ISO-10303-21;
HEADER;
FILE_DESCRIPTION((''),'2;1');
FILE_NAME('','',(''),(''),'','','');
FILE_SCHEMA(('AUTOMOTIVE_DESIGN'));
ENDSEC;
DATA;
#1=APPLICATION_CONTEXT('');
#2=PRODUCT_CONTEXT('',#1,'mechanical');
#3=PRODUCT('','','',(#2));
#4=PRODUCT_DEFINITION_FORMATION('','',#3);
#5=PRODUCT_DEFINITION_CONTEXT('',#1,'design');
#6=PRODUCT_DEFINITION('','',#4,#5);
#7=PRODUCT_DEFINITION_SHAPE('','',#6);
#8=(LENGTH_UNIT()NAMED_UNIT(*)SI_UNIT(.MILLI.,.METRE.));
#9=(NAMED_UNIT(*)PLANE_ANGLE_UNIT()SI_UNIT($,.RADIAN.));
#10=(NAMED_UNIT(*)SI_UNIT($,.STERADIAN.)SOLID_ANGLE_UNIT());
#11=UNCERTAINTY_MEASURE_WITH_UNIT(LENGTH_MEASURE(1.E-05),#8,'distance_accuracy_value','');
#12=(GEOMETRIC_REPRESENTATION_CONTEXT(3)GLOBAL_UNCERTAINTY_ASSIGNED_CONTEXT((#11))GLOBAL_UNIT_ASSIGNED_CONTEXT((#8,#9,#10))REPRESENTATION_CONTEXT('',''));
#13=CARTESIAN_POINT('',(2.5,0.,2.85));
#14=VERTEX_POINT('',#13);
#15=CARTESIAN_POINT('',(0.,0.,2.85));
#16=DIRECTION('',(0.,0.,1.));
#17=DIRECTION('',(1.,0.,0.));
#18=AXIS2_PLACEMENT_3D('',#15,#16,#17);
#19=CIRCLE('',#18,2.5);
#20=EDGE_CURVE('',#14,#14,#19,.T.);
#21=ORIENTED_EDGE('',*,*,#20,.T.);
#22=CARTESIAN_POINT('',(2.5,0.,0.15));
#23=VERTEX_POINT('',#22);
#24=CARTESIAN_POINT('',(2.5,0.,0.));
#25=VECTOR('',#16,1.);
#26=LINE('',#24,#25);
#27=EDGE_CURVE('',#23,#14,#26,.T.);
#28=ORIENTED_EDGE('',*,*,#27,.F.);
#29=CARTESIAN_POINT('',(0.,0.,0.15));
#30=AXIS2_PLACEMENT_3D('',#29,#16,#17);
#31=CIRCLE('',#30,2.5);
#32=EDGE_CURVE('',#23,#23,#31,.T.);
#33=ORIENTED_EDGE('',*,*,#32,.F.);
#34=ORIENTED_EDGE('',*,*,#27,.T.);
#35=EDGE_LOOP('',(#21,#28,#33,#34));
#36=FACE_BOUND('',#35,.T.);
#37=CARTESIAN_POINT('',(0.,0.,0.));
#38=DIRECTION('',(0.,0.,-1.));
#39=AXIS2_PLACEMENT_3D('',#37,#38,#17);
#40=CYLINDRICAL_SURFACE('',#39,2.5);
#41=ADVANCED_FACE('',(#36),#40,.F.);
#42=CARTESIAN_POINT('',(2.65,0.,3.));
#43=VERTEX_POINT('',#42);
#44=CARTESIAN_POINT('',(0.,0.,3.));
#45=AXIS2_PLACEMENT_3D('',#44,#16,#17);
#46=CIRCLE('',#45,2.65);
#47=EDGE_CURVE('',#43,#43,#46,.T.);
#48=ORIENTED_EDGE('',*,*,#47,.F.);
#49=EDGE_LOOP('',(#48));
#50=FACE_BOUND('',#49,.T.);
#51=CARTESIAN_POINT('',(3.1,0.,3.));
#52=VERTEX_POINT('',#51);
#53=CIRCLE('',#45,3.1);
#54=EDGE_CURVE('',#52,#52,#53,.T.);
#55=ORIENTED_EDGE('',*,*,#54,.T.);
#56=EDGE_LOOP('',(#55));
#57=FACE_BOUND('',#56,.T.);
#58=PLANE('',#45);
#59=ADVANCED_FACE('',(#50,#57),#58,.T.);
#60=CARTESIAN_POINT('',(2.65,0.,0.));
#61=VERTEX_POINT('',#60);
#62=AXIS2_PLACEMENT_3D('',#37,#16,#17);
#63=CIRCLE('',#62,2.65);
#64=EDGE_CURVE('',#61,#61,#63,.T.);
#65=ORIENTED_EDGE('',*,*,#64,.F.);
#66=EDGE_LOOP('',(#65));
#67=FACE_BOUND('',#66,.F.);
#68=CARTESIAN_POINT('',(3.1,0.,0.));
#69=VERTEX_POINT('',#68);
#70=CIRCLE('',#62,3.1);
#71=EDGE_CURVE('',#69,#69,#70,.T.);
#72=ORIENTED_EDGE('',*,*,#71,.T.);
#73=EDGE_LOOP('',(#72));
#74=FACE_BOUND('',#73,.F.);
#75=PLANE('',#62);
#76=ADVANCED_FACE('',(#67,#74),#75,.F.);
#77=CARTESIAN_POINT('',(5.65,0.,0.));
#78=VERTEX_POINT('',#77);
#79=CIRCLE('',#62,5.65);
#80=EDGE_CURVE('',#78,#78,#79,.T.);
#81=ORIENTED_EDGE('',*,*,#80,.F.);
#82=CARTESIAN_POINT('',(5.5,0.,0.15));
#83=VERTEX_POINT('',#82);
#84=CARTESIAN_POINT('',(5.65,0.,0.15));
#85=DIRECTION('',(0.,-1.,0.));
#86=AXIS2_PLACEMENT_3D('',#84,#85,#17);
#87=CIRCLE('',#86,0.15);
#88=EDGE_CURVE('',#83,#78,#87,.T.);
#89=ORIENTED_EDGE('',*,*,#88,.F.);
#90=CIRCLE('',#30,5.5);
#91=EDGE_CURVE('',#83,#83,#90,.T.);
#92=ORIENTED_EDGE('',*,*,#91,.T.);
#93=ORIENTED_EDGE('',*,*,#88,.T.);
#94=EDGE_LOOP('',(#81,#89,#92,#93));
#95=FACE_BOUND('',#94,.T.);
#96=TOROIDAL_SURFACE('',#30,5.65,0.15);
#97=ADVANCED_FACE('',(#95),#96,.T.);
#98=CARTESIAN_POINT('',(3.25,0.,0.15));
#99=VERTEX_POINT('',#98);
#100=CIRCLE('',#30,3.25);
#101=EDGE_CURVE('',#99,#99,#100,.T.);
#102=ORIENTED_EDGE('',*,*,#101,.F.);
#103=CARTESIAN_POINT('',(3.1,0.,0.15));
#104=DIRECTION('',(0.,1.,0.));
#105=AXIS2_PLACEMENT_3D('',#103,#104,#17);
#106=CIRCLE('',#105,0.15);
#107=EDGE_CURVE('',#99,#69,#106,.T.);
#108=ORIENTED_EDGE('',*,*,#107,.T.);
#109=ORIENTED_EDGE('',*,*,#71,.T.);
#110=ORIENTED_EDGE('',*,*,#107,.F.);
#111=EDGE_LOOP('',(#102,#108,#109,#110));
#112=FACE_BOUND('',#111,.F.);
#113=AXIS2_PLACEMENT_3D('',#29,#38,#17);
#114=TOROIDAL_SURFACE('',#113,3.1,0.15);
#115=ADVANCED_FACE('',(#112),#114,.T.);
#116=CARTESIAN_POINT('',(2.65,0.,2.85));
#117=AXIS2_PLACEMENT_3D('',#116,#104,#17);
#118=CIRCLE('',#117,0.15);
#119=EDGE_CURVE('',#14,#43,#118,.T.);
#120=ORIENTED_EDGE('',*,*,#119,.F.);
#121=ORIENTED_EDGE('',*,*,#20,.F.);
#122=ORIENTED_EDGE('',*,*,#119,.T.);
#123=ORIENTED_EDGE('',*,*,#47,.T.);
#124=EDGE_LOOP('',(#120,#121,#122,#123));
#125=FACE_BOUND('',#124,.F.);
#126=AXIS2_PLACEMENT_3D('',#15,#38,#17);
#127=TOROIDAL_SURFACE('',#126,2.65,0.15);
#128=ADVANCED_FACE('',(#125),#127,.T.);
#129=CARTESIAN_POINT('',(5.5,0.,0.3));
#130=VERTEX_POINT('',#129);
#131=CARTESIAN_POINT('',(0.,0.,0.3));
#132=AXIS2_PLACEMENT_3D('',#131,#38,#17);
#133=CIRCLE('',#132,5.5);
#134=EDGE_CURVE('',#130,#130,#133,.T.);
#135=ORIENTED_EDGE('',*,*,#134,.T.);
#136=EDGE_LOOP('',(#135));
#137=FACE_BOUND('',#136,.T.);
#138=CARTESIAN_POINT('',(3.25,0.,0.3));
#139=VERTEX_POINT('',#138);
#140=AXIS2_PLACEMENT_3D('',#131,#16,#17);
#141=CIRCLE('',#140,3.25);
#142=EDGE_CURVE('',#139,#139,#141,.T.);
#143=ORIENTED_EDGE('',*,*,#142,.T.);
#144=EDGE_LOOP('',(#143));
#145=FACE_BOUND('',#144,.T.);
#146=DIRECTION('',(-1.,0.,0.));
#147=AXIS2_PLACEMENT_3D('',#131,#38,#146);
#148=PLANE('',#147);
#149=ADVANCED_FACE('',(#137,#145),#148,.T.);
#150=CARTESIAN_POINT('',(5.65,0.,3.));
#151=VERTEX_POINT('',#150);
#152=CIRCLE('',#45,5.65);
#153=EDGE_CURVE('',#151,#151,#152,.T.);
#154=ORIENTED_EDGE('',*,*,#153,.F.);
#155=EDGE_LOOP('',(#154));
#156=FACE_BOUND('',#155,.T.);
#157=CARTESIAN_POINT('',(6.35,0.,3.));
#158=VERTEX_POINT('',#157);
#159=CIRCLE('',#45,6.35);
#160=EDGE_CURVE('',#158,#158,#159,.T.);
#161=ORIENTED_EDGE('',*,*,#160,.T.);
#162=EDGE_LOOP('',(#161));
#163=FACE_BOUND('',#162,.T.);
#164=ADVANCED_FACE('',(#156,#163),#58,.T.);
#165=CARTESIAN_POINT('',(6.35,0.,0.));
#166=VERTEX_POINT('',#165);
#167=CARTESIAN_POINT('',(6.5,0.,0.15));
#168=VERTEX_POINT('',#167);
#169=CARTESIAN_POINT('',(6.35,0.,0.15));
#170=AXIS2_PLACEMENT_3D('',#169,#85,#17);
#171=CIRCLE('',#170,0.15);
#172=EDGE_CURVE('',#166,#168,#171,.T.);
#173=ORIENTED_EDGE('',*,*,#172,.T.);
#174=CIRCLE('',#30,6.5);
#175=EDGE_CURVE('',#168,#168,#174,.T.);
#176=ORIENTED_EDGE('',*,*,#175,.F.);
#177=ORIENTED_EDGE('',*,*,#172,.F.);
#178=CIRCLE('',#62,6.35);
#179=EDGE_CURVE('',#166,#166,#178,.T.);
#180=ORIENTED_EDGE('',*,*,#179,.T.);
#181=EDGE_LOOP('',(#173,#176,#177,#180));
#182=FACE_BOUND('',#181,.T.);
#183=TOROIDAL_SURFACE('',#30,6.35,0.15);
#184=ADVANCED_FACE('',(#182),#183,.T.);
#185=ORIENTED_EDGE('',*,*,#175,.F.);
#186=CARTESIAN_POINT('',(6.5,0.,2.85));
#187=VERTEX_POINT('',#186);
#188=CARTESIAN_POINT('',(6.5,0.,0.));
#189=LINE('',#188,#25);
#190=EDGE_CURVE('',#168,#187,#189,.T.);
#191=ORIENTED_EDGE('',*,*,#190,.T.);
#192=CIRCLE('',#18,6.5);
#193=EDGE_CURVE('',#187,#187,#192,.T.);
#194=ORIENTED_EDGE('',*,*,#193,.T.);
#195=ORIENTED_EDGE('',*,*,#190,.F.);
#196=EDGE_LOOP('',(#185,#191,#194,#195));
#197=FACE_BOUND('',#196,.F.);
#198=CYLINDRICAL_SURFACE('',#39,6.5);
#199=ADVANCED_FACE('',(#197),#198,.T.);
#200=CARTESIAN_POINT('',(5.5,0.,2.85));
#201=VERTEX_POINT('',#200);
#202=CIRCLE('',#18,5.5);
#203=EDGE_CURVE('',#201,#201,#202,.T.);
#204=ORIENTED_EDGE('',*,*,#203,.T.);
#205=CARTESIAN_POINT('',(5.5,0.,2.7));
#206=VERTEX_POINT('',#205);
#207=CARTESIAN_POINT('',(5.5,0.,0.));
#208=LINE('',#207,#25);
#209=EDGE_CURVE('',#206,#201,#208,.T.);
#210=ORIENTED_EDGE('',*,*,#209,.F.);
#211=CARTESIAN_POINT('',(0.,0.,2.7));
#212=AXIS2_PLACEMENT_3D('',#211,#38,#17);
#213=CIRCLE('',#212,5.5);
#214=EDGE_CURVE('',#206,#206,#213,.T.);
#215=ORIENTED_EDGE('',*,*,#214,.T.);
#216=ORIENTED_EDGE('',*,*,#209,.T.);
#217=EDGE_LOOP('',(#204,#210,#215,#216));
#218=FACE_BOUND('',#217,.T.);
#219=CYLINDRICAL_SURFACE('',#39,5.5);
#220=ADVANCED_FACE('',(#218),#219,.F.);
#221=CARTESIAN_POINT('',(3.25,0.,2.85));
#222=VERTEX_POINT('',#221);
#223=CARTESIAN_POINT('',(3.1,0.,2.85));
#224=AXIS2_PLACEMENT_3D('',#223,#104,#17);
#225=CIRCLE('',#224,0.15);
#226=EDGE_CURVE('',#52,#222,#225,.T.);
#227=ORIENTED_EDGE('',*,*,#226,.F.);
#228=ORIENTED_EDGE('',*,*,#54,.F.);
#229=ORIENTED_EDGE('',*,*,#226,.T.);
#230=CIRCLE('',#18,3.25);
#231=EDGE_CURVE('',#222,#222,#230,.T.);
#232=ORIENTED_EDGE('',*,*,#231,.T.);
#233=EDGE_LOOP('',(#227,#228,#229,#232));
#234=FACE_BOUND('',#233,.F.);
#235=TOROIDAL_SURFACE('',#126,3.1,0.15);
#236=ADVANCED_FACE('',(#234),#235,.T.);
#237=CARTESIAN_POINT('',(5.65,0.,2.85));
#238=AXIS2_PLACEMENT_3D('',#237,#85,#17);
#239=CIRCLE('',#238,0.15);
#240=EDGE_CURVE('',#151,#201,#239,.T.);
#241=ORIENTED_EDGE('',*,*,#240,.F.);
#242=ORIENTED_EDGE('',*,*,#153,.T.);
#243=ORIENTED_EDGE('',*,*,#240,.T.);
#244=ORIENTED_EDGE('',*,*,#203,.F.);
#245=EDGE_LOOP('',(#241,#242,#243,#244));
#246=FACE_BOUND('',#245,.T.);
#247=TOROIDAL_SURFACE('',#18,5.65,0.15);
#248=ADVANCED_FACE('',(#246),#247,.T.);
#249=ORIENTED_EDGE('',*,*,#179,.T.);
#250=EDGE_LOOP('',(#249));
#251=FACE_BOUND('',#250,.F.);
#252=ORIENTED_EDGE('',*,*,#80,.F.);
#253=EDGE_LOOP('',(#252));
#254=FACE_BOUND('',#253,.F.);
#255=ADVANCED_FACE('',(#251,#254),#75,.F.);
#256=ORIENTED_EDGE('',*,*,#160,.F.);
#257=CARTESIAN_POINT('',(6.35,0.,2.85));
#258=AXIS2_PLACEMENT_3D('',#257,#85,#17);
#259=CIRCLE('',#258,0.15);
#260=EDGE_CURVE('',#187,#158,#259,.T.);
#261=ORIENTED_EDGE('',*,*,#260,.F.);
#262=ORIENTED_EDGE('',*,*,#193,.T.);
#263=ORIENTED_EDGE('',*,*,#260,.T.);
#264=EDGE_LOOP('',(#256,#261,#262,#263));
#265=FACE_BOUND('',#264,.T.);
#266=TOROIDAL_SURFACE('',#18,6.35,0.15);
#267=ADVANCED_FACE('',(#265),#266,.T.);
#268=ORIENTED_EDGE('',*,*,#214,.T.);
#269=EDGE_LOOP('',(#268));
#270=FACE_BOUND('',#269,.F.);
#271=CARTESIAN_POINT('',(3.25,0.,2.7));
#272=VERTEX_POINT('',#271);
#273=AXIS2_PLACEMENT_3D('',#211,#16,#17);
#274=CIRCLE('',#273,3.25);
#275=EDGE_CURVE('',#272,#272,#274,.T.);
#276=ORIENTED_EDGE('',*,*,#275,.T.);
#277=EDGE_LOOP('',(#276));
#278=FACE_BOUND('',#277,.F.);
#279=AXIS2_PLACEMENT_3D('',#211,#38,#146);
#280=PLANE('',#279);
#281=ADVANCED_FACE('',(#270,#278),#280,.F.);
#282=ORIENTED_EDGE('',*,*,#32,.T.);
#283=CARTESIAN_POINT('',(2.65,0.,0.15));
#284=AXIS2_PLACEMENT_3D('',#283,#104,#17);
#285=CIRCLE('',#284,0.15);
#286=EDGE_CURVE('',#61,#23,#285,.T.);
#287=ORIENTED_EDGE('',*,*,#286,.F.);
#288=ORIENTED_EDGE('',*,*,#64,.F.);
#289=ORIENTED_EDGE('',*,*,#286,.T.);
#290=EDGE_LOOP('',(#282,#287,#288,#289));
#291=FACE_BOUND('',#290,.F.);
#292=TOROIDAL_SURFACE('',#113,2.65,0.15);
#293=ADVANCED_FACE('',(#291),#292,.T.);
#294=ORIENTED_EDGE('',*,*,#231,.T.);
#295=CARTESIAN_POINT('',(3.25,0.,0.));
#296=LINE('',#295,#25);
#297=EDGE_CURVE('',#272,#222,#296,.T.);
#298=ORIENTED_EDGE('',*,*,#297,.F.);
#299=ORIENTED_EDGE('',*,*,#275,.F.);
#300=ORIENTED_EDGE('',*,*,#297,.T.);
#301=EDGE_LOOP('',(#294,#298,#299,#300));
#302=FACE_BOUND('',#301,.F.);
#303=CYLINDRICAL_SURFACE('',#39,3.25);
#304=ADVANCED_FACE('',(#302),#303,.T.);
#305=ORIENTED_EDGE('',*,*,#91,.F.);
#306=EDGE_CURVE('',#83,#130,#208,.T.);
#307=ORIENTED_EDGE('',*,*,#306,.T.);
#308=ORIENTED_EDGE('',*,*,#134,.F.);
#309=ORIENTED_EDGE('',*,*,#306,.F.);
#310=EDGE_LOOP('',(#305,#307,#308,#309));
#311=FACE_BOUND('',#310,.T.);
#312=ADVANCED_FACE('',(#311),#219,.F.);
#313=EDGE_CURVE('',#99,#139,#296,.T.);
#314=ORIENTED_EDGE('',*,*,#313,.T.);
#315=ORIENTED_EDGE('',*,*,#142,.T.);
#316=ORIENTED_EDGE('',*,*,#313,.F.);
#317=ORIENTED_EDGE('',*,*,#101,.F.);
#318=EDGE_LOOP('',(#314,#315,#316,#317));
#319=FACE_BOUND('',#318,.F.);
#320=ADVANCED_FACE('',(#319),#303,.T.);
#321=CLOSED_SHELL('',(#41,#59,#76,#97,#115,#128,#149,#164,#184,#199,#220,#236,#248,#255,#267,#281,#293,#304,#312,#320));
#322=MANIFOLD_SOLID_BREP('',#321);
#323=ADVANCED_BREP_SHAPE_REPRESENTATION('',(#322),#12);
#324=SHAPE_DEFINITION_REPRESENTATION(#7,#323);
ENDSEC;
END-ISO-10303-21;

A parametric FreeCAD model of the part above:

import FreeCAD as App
import Part
import Sketcher

V = App.Vector


def edges_at(feature, points):
    """Names of the edges that pass closest to the given points."""
    edges = feature.Shape.Edges
    near = lambda p: min(range(len(edges)), key=lambda i: edges[i].distToShape(Part.Vertex(*p))[0])
    return sorted({f"Edge{near(p) + 1}" for p in points})

doc = App.newDocument("Part")
body = doc.addObject("PartDesign::Body", "Body")
body.AllowCompound = True

# Sketch on XY plane
sketch1 = doc.addObject("Sketcher::SketchObject", "Sketch")
body.addObject(sketch1)
sketch1.AttachmentSupport = (doc.XY_Plane, [""])
sketch1.MapMode = "FlatFace"
sketch1.addGeometry([
    Part.Circle(V(0, 0, 0), V(0, 0, 1), 6.5),
    Part.Circle(V(0, 0, 0), V(0, 0, 1), 5.5),
    Part.Circle(V(0, 0, 0), V(0, 0, 1), 3.25),
    Part.Circle(V(0, 0, 0), V(0, 0, 1), 2.5),
], False)
sketch1.addConstraint([
    Sketcher.Constraint("Coincident", 0, 3, -1, 1),
    Sketcher.Constraint("Coincident", 1, 3, -1, 1),
    Sketcher.Constraint("Coincident", 2, 3, -1, 1),
    Sketcher.Constraint("Coincident", 3, 3, -1, 1),
    Sketcher.Constraint("Diameter", 0, 13.0),
    Sketcher.Constraint("Diameter", 1, 11.0),
    Sketcher.Constraint("Diameter", 3, 5.0),
    Sketcher.Constraint("Diameter", 2, 6.5),
])
pad1 = doc.addObject("PartDesign::Pad", "Pad")
body.addObject(pad1)
pad1.Profile = sketch1
pad1.Length = 3

# Sketch on XY plane
sketch2 = doc.addObject("Sketcher::SketchObject", "Sketch001")
body.addObject(sketch2)
sketch2.AttachmentSupport = (doc.XY_Plane, [""])
sketch2.MapMode = "FlatFace"
sketch2.AttachmentOffset = App.Placement(V(0, 0, 0.3), App.Rotation())
sketch2.addGeometry([
    Part.Circle(V(0, 0, 0), V(0, 0, 1), 5.5),
    Part.Circle(V(0, 0, 0), V(0, 0, 1), 3.25),
], False)
sketch2.addConstraint([
    Sketcher.Constraint("Coincident", 0, 3, -1, 1),
    Sketcher.Constraint("Coincident", 1, 3, -1, 1),
    Sketcher.Constraint("Diameter", 0, 11.0),
    Sketcher.Constraint("Diameter", 1, 6.5),
])
pad2 = doc.addObject("PartDesign::Pad", "Pad001")
body.addObject(pad2)
pad2.Profile = sketch2
pad2.Length = 2.4
doc.recompute()

fillet = doc.addObject("PartDesign::Fillet", "Fillet")
body.addObject(fillet)
fillet.Base = (pad2, edges_at(pad2, [
    (-6.5, 0, 3),
    (-6.5, 0, 0),
    (-5.5, 0, 3),
    (-3.25, 0, 3),
    (-2.5, 0, 3),
    (-2.5, 0, 0),
    (-3.25, 0, 0),
    (-5.5, 0, 0),
]))
fillet.Radius = 0.15

doc.recompute()
